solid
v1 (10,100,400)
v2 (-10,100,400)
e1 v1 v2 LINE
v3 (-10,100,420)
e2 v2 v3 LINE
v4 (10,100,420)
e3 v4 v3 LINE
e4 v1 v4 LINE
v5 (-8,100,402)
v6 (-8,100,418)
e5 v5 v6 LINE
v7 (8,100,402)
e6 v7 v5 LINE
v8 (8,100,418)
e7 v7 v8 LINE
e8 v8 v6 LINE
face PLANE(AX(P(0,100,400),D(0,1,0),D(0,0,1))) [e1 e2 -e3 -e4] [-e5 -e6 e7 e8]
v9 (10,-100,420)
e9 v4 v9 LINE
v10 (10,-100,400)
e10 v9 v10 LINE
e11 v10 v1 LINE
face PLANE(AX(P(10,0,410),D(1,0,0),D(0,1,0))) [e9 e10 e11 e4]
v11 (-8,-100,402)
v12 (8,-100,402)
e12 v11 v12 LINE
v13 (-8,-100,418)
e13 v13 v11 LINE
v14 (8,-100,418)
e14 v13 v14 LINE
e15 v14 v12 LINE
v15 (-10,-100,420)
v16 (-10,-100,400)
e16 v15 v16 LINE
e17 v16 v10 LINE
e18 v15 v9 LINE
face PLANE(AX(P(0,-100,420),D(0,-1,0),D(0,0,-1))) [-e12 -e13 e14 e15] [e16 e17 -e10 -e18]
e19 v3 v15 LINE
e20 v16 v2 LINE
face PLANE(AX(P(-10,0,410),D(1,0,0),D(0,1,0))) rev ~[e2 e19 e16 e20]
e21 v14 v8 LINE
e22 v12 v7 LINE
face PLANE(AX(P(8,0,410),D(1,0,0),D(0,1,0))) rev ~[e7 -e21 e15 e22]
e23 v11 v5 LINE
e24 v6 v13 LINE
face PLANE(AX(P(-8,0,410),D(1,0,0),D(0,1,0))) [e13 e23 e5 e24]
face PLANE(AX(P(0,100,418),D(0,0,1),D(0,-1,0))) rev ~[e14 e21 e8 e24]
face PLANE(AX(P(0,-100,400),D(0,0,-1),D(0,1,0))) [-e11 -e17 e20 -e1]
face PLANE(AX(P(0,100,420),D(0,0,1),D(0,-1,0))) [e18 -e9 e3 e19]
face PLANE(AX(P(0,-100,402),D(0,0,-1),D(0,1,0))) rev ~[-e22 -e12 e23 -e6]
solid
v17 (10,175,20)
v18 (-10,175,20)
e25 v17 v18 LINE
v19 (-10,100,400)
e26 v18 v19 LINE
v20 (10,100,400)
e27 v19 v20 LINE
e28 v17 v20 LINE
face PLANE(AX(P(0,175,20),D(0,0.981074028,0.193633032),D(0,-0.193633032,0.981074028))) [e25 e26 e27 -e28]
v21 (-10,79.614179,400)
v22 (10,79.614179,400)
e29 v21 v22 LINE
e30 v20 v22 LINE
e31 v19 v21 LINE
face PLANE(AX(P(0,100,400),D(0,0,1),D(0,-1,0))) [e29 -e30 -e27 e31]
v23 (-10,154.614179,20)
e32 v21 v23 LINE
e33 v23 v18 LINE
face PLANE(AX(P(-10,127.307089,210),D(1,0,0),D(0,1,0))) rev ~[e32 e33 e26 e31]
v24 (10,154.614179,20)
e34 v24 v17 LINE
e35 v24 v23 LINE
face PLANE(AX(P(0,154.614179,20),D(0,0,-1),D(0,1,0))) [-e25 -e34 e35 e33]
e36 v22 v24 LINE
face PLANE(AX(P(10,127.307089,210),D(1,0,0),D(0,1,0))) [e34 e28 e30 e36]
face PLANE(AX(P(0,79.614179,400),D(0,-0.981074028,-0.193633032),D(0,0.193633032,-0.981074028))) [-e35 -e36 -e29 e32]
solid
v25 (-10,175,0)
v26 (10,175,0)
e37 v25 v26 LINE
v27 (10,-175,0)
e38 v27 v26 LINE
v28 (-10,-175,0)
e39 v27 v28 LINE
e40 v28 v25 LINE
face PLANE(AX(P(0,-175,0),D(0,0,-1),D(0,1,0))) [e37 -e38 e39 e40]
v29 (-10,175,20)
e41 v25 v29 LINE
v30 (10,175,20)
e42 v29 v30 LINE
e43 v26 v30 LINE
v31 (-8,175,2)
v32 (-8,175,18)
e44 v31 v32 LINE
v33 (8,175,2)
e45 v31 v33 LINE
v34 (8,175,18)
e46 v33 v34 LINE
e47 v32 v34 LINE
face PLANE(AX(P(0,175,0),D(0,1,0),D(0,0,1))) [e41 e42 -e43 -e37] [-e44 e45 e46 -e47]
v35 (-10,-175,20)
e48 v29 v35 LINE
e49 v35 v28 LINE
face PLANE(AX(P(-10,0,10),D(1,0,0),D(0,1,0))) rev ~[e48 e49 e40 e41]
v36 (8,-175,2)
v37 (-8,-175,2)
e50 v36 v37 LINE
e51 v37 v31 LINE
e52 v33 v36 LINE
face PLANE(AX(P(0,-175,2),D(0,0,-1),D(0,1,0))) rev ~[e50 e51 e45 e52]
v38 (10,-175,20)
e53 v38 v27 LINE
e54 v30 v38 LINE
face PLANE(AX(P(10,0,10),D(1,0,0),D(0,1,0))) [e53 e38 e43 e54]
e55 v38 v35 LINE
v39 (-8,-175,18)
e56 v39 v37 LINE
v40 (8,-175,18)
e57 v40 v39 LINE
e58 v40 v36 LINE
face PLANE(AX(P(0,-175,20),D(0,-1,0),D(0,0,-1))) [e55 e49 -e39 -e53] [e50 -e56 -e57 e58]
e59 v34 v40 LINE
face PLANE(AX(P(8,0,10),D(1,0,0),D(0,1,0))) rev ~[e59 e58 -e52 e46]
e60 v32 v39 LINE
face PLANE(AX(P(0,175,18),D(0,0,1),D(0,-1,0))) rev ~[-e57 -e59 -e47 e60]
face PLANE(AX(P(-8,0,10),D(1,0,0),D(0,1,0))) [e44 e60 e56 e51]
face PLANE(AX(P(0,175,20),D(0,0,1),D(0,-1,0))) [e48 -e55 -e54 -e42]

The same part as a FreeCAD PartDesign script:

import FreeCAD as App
import Part
import Sketcher

V = App.Vector


def faces_at(feature, points):
    """Names of the faces that lie closest to the given points."""
    faces = feature.Shape.Faces
    near = lambda p: min(range(len(faces)), key=lambda i: faces[i].distToShape(Part.Vertex(*p))[0])
    return sorted({f"Face{near(p) + 1}" for p in points})


def add_polygon(sketch, points):
    """Adds a closed chain of lines whose ends are joined by coincident constraints."""
    first, n = sketch.GeometryCount, len(points)
    for a, b in zip(points, points[1:] + points[:1]):
        sketch.addGeometry(Part.LineSegment(App.Vector(*a, 0), App.Vector(*b, 0)), False)
    for i in range(n):
        sketch.addConstraint(Sketcher.Constraint("Coincident", first + i, 2, first + (i + 1) % n, 1))

doc = App.newDocument("Part")
body = doc.addObject("PartDesign::Body", "Body")

sketch1 = body.newObject("Sketcher::SketchObject", "Sketch")
sketch1.AttachmentSupport = (doc.getObject("YZ_Plane"), [""])
sketch1.MapMode = "FlatFace"
add_polygon(sketch1, [(-175, 0), (175, 0), (175, 20), (-175, 20)])
sketch1.addConstraint([
    Sketcher.Constraint("Horizontal", 0),
    Sketcher.Constraint("Vertical", 1),
    Sketcher.Constraint("Horizontal", 2),
    Sketcher.Constraint("Vertical", 3),
    Sketcher.Constraint("Symmetric", 0, 2, 3, 2, -1, 1),
    Sketcher.Constraint("DistanceX", 0, 1, 0, 2, 350.0),
    Sketcher.Constraint("DistanceY", 1, 1, 1, 2, 20.0),
])
pad1 = body.newObject("PartDesign::Pad", "Pad")
pad1.Profile = sketch1
pad1.Length = 20
pad1.Midplane = True
doc.recompute()

thickness = body.newObject("PartDesign::Thickness", "Thickness")
thickness.Base = (pad1, faces_at(pad1, [(0, -175, 10), (0, 175, 10)]))
thickness.Value = 2
thickness.Reversed = True
thickness.Join = "Arc"
body2 = doc.addObject("PartDesign::Body", "Body001")

sketch2 = body2.newObject("Sketcher::SketchObject", "Sketch001")
sketch2.AttachmentSupport = (doc.getObject("YZ_Plane001"), [""])
sketch2.MapMode = "FlatFace"
add_polygon(sketch2, [(100, 420), (-100, 420), (-100, 400), (100, 400)])
sketch2.addConstraint([
    Sketcher.Constraint("Horizontal", 0),
    Sketcher.Constraint("Vertical", 1),
    Sketcher.Constraint("Horizontal", 2),
    Sketcher.Constraint("Vertical", 3),
    Sketcher.Constraint("DistanceX", 0, 2, 0, 1, 200.0),
    Sketcher.Constraint("DistanceY", 1, 2, 1, 1, 20.0),
    Sketcher.Constraint("DistanceX", 0, 2, -1, 1, 100.0),
    Sketcher.Constraint("DistanceY", -1, 1, 0, 2, 420.0),
])
pad2 = body2.newObject("PartDesign::Pad", "Pad001")
pad2.Profile = sketch2
pad2.Length = 20
pad2.Midplane = True
doc.recompute()

thickness2 = body2.newObject("PartDesign::Thickness", "Thickness001")
thickness2.Base = (pad2, faces_at(pad2, [(0, 100, 410), (0, -100, 410)]))
thickness2.Value = 2
thickness2.Reversed = True
thickness2.Join = "Arc"
body3 = doc.addObject("PartDesign::Body", "Body002")

sketch3 = body3.newObject("Sketcher::SketchObject", "Sketch002")
sketch3.AttachmentSupport = (doc.getObject("YZ_Plane002"), [""])
sketch3.MapMode = "FlatFace"
add_polygon(sketch3, [(175, 20), (100, 400), (80, 400), (155, 20)])
sketch3.addConstraint([
    Sketcher.Constraint("Horizontal", 1),
    Sketcher.Constraint("Horizontal", 3),
    Sketcher.Constraint("Parallel", 0, 2),
    Sketcher.Constraint("DistanceX", -1, 1, 0, 2, 100.0),
    Sketcher.Constraint("DistanceY", -1, 1, 0, 2, 400.0),
    Sketcher.Constraint("DistanceY", -1, 1, 2, 2, 20.0),
    Sketcher.Constraint("DistanceX", -1, 1, 3, 2, 175.0),
    Sketcher.Constraint("DistanceX", 1, 2, 1, 1, 20.385821),
])
pad3 = body3.newObject("PartDesign::Pad", "Pad002")
pad3.Profile = sketch3
pad3.Length = 20
pad3.Midplane = True

doc.recompute()
